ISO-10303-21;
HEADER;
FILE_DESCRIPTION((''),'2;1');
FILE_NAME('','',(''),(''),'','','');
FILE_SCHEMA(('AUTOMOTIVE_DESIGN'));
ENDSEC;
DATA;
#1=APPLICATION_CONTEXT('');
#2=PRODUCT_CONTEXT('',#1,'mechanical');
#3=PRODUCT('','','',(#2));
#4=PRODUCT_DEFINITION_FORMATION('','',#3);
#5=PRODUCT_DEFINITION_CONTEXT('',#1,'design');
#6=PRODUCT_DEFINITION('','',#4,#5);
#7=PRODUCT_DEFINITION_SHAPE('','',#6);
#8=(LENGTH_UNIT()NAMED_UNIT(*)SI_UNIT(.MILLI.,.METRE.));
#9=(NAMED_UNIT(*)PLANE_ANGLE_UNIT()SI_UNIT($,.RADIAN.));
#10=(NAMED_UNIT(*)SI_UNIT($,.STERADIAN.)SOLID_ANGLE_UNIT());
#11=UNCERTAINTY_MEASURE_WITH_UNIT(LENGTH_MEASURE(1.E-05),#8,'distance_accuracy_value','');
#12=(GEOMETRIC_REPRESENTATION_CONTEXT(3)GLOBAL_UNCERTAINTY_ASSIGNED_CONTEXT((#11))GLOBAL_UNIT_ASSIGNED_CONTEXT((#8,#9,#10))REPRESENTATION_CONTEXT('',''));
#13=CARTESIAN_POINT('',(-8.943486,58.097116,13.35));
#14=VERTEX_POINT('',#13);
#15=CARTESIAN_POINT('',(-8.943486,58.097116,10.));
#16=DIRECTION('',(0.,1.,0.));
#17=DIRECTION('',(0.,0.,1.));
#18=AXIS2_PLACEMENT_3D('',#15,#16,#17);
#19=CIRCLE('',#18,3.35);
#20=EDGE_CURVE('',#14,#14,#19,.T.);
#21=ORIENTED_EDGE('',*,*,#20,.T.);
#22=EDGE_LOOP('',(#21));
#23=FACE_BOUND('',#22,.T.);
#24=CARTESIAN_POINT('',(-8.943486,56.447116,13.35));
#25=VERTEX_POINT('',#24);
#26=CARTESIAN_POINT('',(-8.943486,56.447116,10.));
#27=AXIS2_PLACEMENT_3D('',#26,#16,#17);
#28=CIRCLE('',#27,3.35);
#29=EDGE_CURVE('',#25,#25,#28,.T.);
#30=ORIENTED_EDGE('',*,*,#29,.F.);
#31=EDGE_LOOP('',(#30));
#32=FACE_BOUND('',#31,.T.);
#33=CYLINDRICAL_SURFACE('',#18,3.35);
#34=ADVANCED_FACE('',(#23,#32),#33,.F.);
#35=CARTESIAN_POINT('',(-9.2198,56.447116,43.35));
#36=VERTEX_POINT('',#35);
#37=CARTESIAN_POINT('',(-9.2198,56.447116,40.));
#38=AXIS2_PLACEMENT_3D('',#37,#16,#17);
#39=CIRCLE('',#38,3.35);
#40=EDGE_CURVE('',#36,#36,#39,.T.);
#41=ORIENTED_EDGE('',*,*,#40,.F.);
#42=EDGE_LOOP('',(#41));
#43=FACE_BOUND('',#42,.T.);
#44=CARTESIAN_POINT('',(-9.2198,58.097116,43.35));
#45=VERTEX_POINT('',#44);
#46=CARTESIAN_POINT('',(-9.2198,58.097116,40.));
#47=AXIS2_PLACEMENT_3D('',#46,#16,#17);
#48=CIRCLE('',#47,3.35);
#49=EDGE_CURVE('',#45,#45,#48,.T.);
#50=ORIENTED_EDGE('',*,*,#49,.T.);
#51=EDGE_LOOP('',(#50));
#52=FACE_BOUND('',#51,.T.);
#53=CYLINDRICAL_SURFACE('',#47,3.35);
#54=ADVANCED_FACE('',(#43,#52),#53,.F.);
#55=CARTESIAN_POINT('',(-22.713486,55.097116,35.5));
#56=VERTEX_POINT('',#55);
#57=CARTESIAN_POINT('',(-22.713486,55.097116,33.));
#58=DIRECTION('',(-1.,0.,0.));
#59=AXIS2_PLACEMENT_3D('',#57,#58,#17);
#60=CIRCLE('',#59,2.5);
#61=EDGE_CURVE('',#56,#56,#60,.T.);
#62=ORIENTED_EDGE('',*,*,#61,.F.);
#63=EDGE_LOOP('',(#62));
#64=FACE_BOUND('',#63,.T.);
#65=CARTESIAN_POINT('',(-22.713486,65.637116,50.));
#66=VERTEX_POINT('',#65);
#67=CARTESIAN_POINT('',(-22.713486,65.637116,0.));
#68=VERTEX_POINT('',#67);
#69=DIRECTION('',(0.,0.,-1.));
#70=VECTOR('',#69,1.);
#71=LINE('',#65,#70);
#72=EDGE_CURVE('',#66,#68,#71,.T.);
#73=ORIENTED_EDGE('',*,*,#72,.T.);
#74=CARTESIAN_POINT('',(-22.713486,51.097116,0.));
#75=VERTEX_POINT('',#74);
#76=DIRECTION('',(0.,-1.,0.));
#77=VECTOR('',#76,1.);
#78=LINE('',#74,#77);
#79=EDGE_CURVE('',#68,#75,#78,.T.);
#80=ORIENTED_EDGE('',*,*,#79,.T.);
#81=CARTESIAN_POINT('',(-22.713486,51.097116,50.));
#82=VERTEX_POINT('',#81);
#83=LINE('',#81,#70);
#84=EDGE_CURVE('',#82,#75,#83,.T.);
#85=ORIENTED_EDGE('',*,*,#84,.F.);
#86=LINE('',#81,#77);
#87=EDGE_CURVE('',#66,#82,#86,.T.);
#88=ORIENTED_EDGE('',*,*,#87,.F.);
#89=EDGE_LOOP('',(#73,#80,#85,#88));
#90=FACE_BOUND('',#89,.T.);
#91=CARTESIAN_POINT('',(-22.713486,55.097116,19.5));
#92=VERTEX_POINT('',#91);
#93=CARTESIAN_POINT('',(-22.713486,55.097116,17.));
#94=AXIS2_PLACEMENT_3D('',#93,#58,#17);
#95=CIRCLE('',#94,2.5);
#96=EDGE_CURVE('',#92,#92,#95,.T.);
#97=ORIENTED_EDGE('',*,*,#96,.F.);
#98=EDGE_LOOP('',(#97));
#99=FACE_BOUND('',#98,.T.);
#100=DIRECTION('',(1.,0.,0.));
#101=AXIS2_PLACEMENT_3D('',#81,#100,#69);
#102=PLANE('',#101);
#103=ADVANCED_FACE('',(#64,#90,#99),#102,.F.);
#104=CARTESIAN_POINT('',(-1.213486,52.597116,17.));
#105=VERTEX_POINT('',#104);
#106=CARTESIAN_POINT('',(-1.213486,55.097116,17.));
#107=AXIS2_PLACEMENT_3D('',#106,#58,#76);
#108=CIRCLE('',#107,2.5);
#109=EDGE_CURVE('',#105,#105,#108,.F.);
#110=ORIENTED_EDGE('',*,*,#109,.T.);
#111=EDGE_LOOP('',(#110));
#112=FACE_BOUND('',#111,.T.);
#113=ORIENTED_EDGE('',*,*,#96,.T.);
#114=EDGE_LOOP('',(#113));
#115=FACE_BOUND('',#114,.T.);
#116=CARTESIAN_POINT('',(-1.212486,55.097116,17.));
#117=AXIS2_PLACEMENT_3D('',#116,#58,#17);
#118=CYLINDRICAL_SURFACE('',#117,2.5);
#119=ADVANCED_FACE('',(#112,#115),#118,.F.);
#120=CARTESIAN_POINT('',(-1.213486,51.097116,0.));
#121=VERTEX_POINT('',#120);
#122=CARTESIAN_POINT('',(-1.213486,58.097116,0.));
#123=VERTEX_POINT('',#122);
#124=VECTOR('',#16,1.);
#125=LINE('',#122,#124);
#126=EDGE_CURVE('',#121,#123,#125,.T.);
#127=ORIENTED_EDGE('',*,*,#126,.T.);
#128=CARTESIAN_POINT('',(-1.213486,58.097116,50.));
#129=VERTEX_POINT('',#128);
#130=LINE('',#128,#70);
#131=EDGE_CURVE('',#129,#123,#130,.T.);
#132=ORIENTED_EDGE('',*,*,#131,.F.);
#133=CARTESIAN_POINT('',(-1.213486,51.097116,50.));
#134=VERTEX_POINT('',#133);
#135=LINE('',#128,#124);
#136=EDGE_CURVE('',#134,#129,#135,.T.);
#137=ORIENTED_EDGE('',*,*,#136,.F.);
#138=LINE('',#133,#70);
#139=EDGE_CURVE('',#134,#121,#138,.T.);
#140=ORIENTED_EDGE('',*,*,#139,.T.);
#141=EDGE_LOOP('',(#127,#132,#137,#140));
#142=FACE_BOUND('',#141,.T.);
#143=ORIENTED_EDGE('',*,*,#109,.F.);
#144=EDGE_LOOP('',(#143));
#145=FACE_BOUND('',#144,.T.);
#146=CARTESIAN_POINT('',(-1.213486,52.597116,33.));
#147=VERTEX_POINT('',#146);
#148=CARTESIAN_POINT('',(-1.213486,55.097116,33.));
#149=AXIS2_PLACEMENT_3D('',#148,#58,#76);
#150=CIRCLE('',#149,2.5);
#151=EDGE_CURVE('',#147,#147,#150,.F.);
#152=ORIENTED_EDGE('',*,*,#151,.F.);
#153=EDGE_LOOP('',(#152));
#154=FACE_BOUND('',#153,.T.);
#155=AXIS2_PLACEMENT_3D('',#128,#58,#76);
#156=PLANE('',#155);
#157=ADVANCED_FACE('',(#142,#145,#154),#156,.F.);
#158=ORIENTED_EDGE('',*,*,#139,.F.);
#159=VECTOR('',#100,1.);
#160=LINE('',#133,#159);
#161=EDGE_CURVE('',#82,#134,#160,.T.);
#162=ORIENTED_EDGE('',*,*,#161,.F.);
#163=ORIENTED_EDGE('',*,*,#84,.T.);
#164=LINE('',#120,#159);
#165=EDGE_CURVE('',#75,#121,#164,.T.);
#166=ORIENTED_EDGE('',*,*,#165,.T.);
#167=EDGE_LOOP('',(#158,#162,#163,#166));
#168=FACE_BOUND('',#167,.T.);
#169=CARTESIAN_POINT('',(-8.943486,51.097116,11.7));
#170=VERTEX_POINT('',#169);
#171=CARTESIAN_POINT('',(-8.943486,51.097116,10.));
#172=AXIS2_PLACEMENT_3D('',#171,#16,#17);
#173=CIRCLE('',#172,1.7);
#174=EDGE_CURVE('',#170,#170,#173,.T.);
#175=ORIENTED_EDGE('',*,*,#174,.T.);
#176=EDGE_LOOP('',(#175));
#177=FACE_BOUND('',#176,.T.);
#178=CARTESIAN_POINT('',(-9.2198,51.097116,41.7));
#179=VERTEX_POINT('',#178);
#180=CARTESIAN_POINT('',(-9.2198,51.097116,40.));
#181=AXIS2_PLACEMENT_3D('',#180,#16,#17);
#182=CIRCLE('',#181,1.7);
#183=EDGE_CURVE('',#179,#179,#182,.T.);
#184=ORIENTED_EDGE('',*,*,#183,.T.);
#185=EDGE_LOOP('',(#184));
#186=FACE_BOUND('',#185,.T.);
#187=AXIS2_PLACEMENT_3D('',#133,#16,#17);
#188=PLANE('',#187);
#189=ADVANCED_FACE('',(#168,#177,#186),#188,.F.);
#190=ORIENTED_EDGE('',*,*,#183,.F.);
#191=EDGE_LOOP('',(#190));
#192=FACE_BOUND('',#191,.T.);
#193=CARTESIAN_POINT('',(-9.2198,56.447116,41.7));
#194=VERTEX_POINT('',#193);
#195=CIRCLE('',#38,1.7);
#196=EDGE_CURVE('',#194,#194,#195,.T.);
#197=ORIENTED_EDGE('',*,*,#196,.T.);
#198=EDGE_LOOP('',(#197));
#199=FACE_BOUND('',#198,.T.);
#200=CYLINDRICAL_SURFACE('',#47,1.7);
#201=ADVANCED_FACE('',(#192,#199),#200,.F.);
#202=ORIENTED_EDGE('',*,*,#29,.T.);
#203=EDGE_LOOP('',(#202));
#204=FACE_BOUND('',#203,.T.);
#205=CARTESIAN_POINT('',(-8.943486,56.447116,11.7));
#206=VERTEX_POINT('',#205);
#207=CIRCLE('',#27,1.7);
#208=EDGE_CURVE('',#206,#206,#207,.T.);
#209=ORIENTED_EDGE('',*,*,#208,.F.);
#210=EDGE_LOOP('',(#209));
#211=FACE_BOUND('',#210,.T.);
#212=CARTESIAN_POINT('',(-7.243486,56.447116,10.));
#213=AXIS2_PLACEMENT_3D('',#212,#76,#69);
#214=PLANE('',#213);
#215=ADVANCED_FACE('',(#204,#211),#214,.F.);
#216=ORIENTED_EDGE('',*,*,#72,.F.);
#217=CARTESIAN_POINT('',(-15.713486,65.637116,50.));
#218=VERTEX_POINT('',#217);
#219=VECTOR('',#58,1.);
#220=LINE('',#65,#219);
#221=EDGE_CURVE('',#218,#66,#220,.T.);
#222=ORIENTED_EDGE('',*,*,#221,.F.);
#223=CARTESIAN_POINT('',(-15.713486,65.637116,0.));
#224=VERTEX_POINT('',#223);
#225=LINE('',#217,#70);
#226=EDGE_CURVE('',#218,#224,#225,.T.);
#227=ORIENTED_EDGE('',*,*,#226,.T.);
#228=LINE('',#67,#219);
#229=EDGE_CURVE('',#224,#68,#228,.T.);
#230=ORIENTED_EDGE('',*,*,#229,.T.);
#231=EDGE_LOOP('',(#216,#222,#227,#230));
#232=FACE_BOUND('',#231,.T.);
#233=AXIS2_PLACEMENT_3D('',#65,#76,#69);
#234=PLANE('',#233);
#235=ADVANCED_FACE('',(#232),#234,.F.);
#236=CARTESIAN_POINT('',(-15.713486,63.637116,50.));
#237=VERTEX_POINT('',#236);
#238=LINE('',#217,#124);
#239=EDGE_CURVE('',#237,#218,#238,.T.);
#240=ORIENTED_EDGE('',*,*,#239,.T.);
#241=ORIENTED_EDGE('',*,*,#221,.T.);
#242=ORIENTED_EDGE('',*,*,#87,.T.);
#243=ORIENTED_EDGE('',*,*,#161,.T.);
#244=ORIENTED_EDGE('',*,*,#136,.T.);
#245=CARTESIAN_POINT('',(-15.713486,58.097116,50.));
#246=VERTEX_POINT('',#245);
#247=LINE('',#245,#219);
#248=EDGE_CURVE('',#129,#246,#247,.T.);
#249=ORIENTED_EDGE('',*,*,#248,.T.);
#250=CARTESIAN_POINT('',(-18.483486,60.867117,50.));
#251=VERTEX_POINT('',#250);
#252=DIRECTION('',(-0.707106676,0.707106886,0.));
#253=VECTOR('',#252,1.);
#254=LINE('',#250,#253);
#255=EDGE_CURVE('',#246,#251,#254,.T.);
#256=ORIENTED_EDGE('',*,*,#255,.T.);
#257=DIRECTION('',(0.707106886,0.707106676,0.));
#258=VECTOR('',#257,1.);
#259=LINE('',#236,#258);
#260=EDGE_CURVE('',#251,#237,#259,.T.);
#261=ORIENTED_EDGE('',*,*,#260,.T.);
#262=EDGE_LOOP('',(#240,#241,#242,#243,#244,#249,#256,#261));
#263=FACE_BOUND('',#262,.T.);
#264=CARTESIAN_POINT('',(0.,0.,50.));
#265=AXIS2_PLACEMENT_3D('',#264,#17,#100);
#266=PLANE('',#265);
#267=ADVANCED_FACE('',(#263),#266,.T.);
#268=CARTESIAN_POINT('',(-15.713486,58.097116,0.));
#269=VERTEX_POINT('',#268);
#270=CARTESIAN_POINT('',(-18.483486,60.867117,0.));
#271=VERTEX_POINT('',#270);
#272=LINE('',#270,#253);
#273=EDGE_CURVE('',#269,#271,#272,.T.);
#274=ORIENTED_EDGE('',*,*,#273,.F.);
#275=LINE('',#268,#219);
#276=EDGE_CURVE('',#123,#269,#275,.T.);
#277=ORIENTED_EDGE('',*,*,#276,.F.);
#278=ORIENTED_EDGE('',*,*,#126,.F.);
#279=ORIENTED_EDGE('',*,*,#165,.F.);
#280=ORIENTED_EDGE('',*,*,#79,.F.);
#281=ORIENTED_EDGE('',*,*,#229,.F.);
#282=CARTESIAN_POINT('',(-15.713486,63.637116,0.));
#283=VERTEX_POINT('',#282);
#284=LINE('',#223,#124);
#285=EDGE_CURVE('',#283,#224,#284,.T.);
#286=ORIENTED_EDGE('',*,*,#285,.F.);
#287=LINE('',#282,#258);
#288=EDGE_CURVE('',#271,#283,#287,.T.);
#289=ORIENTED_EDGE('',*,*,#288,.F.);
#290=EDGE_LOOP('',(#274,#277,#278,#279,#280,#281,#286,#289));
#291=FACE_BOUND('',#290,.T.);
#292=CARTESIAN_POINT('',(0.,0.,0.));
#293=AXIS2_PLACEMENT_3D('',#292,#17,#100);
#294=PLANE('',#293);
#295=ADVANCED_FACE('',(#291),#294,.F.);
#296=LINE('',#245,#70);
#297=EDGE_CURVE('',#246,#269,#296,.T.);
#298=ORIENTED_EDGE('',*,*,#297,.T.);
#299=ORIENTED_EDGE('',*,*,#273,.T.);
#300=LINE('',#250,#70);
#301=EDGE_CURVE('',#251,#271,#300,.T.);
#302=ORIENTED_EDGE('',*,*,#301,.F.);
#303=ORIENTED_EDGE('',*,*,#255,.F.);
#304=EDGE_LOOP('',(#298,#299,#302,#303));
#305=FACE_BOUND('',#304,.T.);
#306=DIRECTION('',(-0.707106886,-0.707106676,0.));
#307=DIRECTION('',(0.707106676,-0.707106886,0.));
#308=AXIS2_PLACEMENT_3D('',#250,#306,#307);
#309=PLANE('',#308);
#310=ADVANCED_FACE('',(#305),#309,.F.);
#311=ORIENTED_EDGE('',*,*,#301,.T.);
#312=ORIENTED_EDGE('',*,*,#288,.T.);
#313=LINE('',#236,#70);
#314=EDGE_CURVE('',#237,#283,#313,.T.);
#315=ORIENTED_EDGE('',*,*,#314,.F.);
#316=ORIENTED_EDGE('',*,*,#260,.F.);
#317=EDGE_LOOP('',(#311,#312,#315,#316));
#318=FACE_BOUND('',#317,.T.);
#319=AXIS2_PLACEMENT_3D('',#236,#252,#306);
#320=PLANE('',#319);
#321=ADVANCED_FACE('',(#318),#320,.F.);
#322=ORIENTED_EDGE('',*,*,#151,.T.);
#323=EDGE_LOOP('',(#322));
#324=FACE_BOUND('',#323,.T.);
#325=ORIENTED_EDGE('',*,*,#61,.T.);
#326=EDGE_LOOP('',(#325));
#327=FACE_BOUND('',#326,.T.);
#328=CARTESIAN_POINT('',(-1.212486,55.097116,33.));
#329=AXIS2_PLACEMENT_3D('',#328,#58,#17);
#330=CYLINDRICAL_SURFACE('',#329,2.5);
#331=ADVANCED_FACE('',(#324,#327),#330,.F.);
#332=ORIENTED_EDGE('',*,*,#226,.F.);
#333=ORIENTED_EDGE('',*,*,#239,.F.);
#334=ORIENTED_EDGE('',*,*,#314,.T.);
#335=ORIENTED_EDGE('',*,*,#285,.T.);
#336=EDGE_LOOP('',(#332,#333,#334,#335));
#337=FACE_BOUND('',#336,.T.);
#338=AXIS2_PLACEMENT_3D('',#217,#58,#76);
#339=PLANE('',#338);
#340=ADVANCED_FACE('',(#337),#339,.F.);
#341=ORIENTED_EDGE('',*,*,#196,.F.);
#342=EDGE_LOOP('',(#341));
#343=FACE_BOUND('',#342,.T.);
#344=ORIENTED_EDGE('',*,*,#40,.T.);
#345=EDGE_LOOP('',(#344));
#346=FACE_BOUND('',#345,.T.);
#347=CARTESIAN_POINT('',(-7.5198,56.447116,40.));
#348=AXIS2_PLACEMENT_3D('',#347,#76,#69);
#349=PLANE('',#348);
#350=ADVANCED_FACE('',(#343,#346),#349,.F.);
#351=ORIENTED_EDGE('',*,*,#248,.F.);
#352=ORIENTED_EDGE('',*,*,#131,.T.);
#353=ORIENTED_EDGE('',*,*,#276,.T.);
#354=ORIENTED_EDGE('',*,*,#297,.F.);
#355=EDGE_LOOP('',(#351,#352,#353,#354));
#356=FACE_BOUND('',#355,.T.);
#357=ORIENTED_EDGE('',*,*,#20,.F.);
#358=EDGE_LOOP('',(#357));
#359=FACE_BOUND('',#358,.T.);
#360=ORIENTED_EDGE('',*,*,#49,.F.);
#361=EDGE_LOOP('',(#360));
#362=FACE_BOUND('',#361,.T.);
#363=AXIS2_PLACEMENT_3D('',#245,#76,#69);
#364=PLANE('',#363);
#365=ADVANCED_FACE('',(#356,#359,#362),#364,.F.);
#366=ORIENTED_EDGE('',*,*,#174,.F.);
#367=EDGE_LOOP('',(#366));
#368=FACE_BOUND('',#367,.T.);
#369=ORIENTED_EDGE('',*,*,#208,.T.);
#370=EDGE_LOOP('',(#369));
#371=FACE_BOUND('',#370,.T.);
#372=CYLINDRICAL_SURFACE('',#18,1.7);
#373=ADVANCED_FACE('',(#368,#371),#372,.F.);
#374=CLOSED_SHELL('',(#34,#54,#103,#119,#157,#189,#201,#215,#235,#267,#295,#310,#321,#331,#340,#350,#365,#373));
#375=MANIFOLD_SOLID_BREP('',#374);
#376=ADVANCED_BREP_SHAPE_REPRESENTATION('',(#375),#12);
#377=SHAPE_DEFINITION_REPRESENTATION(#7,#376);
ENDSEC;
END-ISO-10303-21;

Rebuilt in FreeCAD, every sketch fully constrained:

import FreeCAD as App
import Part
import Sketcher

V = App.Vector
Q = App.Units.Quantity


def add_polygon(sketch, points):
    """Adds a closed chain of lines whose ends are joined by coincident constraints."""
    first, n = sketch.GeometryCount, len(points)
    for a, b in zip(points, points[1:] + points[:1]):
        sketch.addGeometry(Part.LineSegment(App.Vector(*a, 0), App.Vector(*b, 0)), False)
    for i in range(n):
        sketch.addConstraint(Sketcher.Constraint("Coincident", first + i, 2, first + (i + 1) % n, 1))

doc = App.newDocument("Part")
body = doc.addObject("PartDesign::Body", "Body")

# Sketch on XY plane
sketch1 = doc.addObject("Sketcher::SketchObject", "Sketch")
body.addObject(sketch1)
sketch1.AttachmentSupport = (doc.XY_Plane, [""])
sketch1.MapMode = "FlatFace"
add_polygon(sketch1, [(-18.5, 60.9), (-15.7, 63.6), (-15.7, 65.6), (-22.7, 65.6), (-22.7, 51.1), (-1.2, 51.1), (-1.2, 58.1), (-15.7, 58.1)])  # lines 0-7
sketch1.addConstraint(Sketcher.Constraint("Vertical", 1))
sketch1.addConstraint(Sketcher.Constraint("Horizontal", 2))
sketch1.addConstraint(Sketcher.Constraint("Vertical", 3))
sketch1.addConstraint(Sketcher.Constraint("Horizontal", 4))
sketch1.addConstraint(Sketcher.Constraint("Vertical", 5))
sketch1.addConstraint(Sketcher.Constraint("Horizontal", 6))
sketch1.addConstraint(Sketcher.Constraint("Perpendicular", 0, 7))
sketch1.addConstraint(Sketcher.Constraint("Vertical", 1, 2, 6, 2))
sketch1.addConstraint(Sketcher.Constraint("Equal", 2, 5))
sketch1.addConstraint(Sketcher.Constraint("Equal", 0, 7))
sketch1.addConstraint(Sketcher.Constraint("DistanceX", 2, 2, 2, 1, Q("7 mm")))
sketch1.addConstraint(Sketcher.Constraint("DistanceY", 1, 1, 1, 2, Q("2 mm")))
sketch1.addConstraint(Sketcher.Constraint("DistanceX", 4, 1, 4, 2, Q("21.5 mm")))
sketch1.addConstraint(Sketcher.Constraint("DistanceY", 3, 2, 3, 1, Q("14.54 mm")))
sketch1.addConstraint(Sketcher.Constraint("DistanceX", 0, 2, -1, 1, Q("15.713486 mm")))
sketch1.addConstraint(Sketcher.Constraint("DistanceY", -1, 1, 0, 2, Q("63.637116 mm")))
pad1 = doc.addObject("PartDesign::Pad", "Pad")
body.addObject(pad1)
pad1.Profile = sketch1
pad1.Length = 50

# Sketch on YZ plane
sketch2 = doc.addObject("Sketcher::SketchObject", "Sketch001")
body.addObject(sketch2)
sketch2.AttachmentSupport = (doc.YZ_Plane, [""])
sketch2.MapMode = "FlatFace"
sketch2.AttachmentOffset = App.Placement(V(0, 0, -22.713486), App.Rotation())
sketch2.addGeometry(Part.Circle(V(55.1, 17, 0), V(0, 0, 1), 2.5), False)
sketch2.addConstraint(Sketcher.Constraint("Diameter", 0, Q("5 mm")))
sketch2.addConstraint(Sketcher.Constraint("DistanceY", -1, 1, 0, 3, Q("17 mm")))
sketch2.addConstraint(Sketcher.Constraint("DistanceX", -1, 1, 0, 3, Q("55.097116 mm")))
pocket1 = doc.addObject("PartDesign::Pocket", "Pocket")
body.addObject(pocket1)
pocket1.Profile = sketch2
pocket1.Type = "UpToFirst"
pocket1.Reversed = True

# Sketch on YZ plane
sketch3 = doc.addObject("Sketcher::SketchObject", "Sketch002")
body.addObject(sketch3)
sketch3.AttachmentSupport = (doc.YZ_Plane, [""])
sketch3.MapMode = "FlatFace"
sketch3.AttachmentOffset = App.Placement(V(0, 0, -22.713486), App.Rotation())
sketch3.addGeometry(Part.Circle(V(55.1, 33, 0), V(0, 0, 1), 2.5), False)
sketch3.addConstraint(Sketcher.Constraint("Diameter", 0, Q("5 mm")))
sketch3.addConstraint(Sketcher.Constraint("DistanceY", -1, 1, 0, 3, Q("33 mm")))
sketch3.addConstraint(Sketcher.Constraint("DistanceX", -1, 1, 0, 3, Q("55.097116 mm")))
pocket2 = doc.addObject("PartDesign::Pocket", "Pocket001")
body.addObject(pocket2)
pocket2.Profile = sketch3
pocket2.Type = "UpToFirst"
pocket2.Reversed = True

# Sketch on XZ plane
sketch4 = doc.addObject("Sketcher::SketchObject", "Sketch003")
body.addObject(sketch4)
sketch4.AttachmentSupport = (doc.XZ_Plane, [""])
sketch4.MapMode = "FlatFace"
sketch4.AttachmentOffset = App.Placement(V(0, 0, -58.097116), App.Rotation())
sketch4.addGeometry(Part.Circle(V(-9.2, 40, 0), V(0, 0, 1), 1.7), False)
sketch4.addGeometry(Part.Circle(V(-8.9, 10, 0), V(0, 0, 1), 1.7), False)
sketch4.addConstraint(Sketcher.Constraint("Equal", 0, 1))
sketch4.addConstraint(Sketcher.Constraint("Diameter", 0, Q("3.4 mm")))
sketch4.addConstraint(Sketcher.Constraint("DistanceY", -1, 1, 0, 3, Q("40 mm")))
sketch4.addConstraint(Sketcher.Constraint("DistanceY", -1, 1, 1, 3, Q("10 mm")))
sketch4.addConstraint(Sketcher.Constraint("DistanceX", 0, 3, -1, 1, Q("9.2198 mm")))
sketch4.addConstraint(Sketcher.Constraint("DistanceX", 1, 3, -1, 1, Q("8.943486 mm")))
doc.recompute()
hole = doc.addObject("PartDesign::Hole", "Hole")
body.addObject(hole)
hole.Profile = sketch4
hole.ThreadType = "None"
hole.Diameter = 3.4
hole.DepthType = "ThroughAll"
hole.HoleCutType = "Counterbore"
hole.HoleCutDiameter = 6.7
hole.HoleCutDepth = 1.65
hole.Reversed = True

doc.recompute()
